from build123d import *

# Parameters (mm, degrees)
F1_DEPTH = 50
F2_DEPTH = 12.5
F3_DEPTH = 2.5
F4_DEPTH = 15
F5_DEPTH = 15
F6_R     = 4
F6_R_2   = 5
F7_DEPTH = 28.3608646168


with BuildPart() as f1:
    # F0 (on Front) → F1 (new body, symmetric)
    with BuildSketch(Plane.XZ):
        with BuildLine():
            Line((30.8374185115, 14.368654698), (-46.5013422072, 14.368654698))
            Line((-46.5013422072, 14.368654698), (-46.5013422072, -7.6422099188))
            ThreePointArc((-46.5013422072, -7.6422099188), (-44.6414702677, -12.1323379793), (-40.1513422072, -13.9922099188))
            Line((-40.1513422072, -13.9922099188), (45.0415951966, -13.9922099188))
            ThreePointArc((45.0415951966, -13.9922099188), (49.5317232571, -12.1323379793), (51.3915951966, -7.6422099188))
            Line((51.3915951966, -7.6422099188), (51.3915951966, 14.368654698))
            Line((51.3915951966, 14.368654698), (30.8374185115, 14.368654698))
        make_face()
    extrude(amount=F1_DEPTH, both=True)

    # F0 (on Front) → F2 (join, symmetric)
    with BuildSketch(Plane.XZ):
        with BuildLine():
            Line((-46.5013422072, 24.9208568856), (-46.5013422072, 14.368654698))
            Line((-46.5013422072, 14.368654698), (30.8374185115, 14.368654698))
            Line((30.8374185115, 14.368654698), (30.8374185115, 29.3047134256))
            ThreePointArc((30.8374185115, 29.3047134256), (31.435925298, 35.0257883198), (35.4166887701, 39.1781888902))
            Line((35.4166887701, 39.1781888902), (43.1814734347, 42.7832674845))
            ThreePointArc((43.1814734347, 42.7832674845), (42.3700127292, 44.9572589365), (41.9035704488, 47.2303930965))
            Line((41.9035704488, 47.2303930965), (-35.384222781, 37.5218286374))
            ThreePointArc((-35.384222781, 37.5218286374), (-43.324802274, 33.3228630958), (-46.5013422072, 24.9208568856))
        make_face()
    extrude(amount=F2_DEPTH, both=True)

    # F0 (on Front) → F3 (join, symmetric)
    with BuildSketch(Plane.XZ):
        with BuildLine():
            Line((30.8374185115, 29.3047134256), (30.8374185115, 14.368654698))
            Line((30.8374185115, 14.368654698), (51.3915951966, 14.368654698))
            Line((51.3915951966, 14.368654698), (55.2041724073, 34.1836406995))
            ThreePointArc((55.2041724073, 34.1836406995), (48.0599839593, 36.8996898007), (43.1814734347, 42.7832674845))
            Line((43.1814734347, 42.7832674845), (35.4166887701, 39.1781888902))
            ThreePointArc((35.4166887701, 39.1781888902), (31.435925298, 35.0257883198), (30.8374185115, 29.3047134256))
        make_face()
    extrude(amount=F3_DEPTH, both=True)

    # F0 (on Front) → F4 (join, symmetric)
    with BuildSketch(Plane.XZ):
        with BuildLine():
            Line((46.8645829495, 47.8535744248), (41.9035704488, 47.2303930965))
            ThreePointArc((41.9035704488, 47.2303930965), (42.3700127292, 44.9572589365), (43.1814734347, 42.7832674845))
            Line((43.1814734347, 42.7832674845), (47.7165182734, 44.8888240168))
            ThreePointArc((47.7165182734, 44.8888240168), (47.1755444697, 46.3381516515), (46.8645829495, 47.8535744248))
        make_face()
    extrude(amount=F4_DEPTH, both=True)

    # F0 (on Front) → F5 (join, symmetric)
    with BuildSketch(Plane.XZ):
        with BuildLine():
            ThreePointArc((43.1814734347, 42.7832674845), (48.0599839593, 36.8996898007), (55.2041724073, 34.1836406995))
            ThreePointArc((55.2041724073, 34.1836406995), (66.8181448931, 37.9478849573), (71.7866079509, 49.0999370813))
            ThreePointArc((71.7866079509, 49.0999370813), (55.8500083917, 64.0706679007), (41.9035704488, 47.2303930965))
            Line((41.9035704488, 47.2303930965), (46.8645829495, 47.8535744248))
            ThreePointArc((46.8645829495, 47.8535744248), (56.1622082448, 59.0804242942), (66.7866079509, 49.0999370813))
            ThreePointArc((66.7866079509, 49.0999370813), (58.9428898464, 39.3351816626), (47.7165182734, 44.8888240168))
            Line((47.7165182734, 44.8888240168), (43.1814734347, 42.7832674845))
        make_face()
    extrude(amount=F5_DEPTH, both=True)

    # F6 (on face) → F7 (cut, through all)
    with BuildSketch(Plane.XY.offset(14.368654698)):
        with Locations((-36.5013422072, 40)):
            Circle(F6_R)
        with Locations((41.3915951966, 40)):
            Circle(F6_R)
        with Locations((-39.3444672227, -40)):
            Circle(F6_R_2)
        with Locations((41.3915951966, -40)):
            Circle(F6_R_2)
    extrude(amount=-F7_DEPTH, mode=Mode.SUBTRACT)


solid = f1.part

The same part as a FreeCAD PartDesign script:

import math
import FreeCAD as App
import Part
import Sketcher
from FreeCAD import Vector
Q = App.Units.Quantity

doc = App.newDocument("Part")
body = doc.addObject("PartDesign::Body", "Body")

sketch1 = doc.addObject("Sketcher::SketchObject", "Sketch")
body.addObject(sketch1)
sketch1.AttachmentSupport = (doc.XZ_Plane, [""])
sketch1.MapMode = "FlatFace"
sketch1.addGeometry([
    Part.LineSegment(Vector(-47, 14, 0), Vector(-47, -8, 0)),
    Part.ArcOfCircle(Part.Circle(Vector(-40, -8, 0), Vector(0, 0, 1), 6), math.radians(180), math.radians(270)),
    Part.LineSegment(Vector(-40, -14, 0), Vector(45, -14, 0)),
    Part.ArcOfCircle(Part.Circle(Vector(45, -8, 0), Vector(0, 0, 1), 6), math.radians(-90), math.radians(0)),
    Part.LineSegment(Vector(51, -8, 0), Vector(51, 14, 0)),
    Part.LineSegment(Vector(51, 14, 0), Vector(-47, 14, 0)),
], False)
sketch1.addConstraint([
    Sketcher.Constraint("Tangent", 0, 2, 1, 1),
    Sketcher.Constraint("Tangent", 1, 2, 2, 1),
    Sketcher.Constraint("Tangent", 2, 2, 3, 1),
    Sketcher.Constraint("Tangent", 3, 2, 4, 1),
    Sketcher.Constraint("Coincident", 4, 2, 5, 1),
    Sketcher.Constraint("Coincident", 5, 2, 0, 1),
    Sketcher.Constraint("Vertical", 0),
    Sketcher.Constraint("Horizontal", 2),
    Sketcher.Constraint("Vertical", 4),
    Sketcher.Constraint("Horizontal", 5),
    Sketcher.Constraint("Equal", 1, 3),
    Sketcher.Constraint("Radius", 1, Q("6.35 mm")),
    Sketcher.Constraint("DistanceX", 2, 1, 2, 2, Q("85.192937 mm")),
    Sketcher.Constraint("DistanceY", 0, 2, 0, 1, Q("22.010865 mm")),
    Sketcher.Constraint("DistanceY", 1, 3, -1, 1, Q("7.64221 mm")),
    Sketcher.Constraint("DistanceX", 1, 3, -1, 1, Q("40.151342 mm")),
])
pad1 = doc.addObject("PartDesign::Pad", "Pad")
body.addObject(pad1)
pad1.Profile = sketch1
pad1.Length = 100
pad1.Midplane = True

sketch2 = doc.addObject("Sketcher::SketchObject", "Sketch001")
body.addObject(sketch2)
sketch2.AttachmentSupport = (doc.XZ_Plane, [""])
sketch2.MapMode = "FlatFace"
sketch2.addGeometry([
    Part.LineSegment(Vector(-46.5, 24.9, 0), Vector(-46.5, 14.4, 0)),
    Part.LineSegment(Vector(-46.5, 14.4, 0), Vector(30.8, 14.4, 0)),
    Part.LineSegment(Vector(30.8, 14.4, 0), Vector(30.8, 29.3, 0)),
    Part.ArcOfCircle(Part.Circle(Vector(39.5, 31.3, 0), Vector(0, 0, 1), 8.9), math.radians(117), math.radians(193)),
    Part.LineSegment(Vector(35.4, 39.2, 0), Vector(43.2, 42.8, 0)),
    Part.ArcOfCircle(Part.Circle(Vector(56.8, 49.1, 0), Vector(0, 0, 1), 15), math.radians(-172.84), math.radians(-155.1)),
    Part.LineSegment(Vector(41.9, 47.2, 0), Vector(-35.4, 37.5, 0)),
    Part.ArcOfCircle(Part.Circle(Vector(-33.8, 24.9, 0), Vector(0, 0, 1), 12.7), math.radians(97), math.radians(180)),
], False)
sketch2.addConstraint([
    Sketcher.Constraint("Coincident", 0, 2, 1, 1),
    Sketcher.Constraint("Coincident", 1, 2, 2, 1),
    Sketcher.Constraint("Coincident", 2, 2, 3, 2),
    Sketcher.Constraint("Coincident", 3, 1, 4, 1),
    Sketcher.Constraint("Coincident", 4, 2, 5, 2),
    Sketcher.Constraint("Coincident", 5, 1, 6, 1),
    Sketcher.Constraint("Tangent", 6, 2, 7, 1),
    Sketcher.Constraint("Tangent", 7, 2, 0, 1),
    Sketcher.Constraint("Vertical", 0),
    Sketcher.Constraint("Horizontal", 1),
    Sketcher.Constraint("Vertical", 2),
    Sketcher.Constraint("Radius", 5, Q("15 mm")),
    Sketcher.Constraint("Radius", 7, Q("12.7 mm")),
    Sketcher.Constraint("Radius", 3, Q("8.875009 mm")),
    Sketcher.Constraint("DistanceX", 1, 1, 1, 2, Q("77.338761 mm")),
    Sketcher.Constraint("DistanceY", 2, 1, 2, 2, Q("14.936059 mm")),
    Sketcher.Constraint("Distance", 4, Q("8.560869 mm")),
    Sketcher.Constraint("Distance", 6, Q("77.895181 mm")),
    Sketcher.Constraint("DistanceY", 0, 2, 0, 1, Q("10.552202 mm")),
    Sketcher.Constraint("DistanceY", -1, 1, 3, 3, Q("31.291671 mm")),
    Sketcher.Constraint("DistanceX", -1, 1, 1, 2, Q("30.837419 mm")),
    Sketcher.Constraint("DistanceX", -1, 1, 3, 1, Q("35.416689 mm")),
    Sketcher.Constraint("DistanceY", -1, 1, 3, 1, Q("39.178189 mm")),
    Sketcher.Constraint("DistanceX", -1, 1, 5, 1, Q("41.90357 mm")),
    Sketcher.Constraint("DistanceY", 3, 1, 4, 2, Q("3.605079 mm")),
])
pad2 = doc.addObject("PartDesign::Pad", "Pad001")
body.addObject(pad2)
pad2.Profile = sketch2
pad2.Length = 25
pad2.Midplane = True

sketch3 = doc.addObject("Sketcher::SketchObject", "Sketch002")
body.addObject(sketch3)
sketch3.AttachmentSupport = (doc.XZ_Plane, [""])
sketch3.MapMode = "FlatFace"
sketch3.addGeometry([
    Part.LineSegment(Vector(30.837419, 29.304713, 0), Vector(30.837419, 14.368655, 0)),
    Part.LineSegment(Vector(30.837419, 14.368655, 0), Vector(51.391595, 14.368655, 0)),
    Part.LineSegment(Vector(51.391595, 14.368655, 0), Vector(55.204172, 34.183641, 0)),
    Part.ArcOfCircle(Part.Circle(Vector(56.786608, 49.099937, 0), Vector(0, 0, 1), 15), math.radians(-155.095231), math.radians(-96.055727)),
    Part.LineSegment(Vector(43.181473, 42.783267, 0), Vector(35.416689, 39.178189, 0)),
    Part.ArcOfCircle(Part.Circle(Vector(39.487146, 31.291671, 0), Vector(0, 0, 1), 8.875009), math.radians(117.299551), math.radians(192.937164)),
], False)
sketch3.addConstraint([
    Sketcher.Constraint("Coincident", 0, 2, 1, 1),
    Sketcher.Constraint("Coincident", 1, 2, 2, 1),
    Sketcher.Constraint("Coincident", 2, 2, 3, 2),
    Sketcher.Constraint("Coincident", 3, 1, 4, 1),
    Sketcher.Constraint("Coincident", 4, 2, 5, 1),
    Sketcher.Constraint("Coincident", 5, 2, 0, 1),
    Sketcher.Constraint("Vertical", 0),
    Sketcher.Constraint("Horizontal", 1),
    Sketcher.Constraint("Radius", 3, Q("15 mm")),
    Sketcher.Constraint("Radius", 5, Q("8.875009 mm")),
    Sketcher.Constraint("DistanceY", 0, 2, 0, 1, Q("14.936059 mm")),
    Sketcher.Constraint("DistanceX", 3, 1, 2, 2, Q("12.022699 mm")),
    Sketcher.Constraint("Distance", 2, Q("20.178439 mm")),
    Sketcher.Constraint("Distance", 4, Q("8.560869 mm")),
    Sketcher.Constraint("DistanceX", 1, 1, 1, 2, Q("20.554177 mm")),
    Sketcher.Constraint("DistanceY", -1, 1, 5, 3, Q("31.291671 mm")),
    Sketcher.Constraint("DistanceX", -1, 1, 0, 2, Q("30.837419 mm")),
    Sketcher.Constraint("DistanceY", -1, 1, 2, 2, Q("34.183641 mm")),
    Sketcher.Constraint("DistanceX", -1, 1, 4, 2, Q("35.416689 mm")),
    Sketcher.Constraint("DistanceY", -1, 1, 4, 2, Q("39.178189 mm")),
])
pad3 = doc.addObject("PartDesign::Pad", "Pad002")
body.addObject(pad3)
pad3.Profile = sketch3
pad3.Length = 5
pad3.Midplane = True

sketch4 = doc.addObject("Sketcher::SketchObject", "Sketch003")
body.addObject(sketch4)
sketch4.AttachmentSupport = (doc.XZ_Plane, [""])
sketch4.MapMode = "FlatFace"
sketch4.addGeometry([
    Part.LineSegment(Vector(46.9, 47.9, 0), Vector(41.9, 47.2, 0)),
    Part.ArcOfCircle(Part.Circle(Vector(56.8, 49.1, 0), Vector(0, 0, 1), 15), math.radians(-172.84), math.radians(-155.1)),
    Part.LineSegment(Vector(43.2, 42.8, 0), Vector(47.7, 44.9, 0)),
    Part.ArcOfCircle(Part.Circle(Vector(56.8, 49.1, 0), Vector(0, 0, 1), 10), math.radians(-172.84), math.radians(-155.1)),
], False)
sketch4.addConstraint([
    Sketcher.Constraint("Coincident", 0, 2, 1, 1),
    Sketcher.Constraint("Coincident", 1, 2, 2, 1),
    Sketcher.Constraint("Coincident", 2, 2, 3, 2),
    Sketcher.Constraint("Coincident", 3, 1, 0, 1),
    Sketcher.Constraint("Coincident", 3, 3, 1, 3),
    Sketcher.Constraint("Radius", 1, Q("15 mm")),
    Sketcher.Constraint("Radius", 3, Q("10 mm")),
    Sketcher.Constraint("DistanceX", -1, 1, 0, 2, Q("41.90357 mm")),
    Sketcher.Constraint("DistanceX", -1, 1, 2, 2, Q("47.716518 mm")),
    Sketcher.Constraint("DistanceY", 1, 2, 3, 3, Q("6.31667 mm")),
    Sketcher.Constraint("DistanceY", 2, 2, 0, 2, Q("2.341569 mm")),
    Sketcher.Constraint("DistanceY", 2, 2, 3, 1, Q("2.96475 mm")),
    Sketcher.Constraint("DistanceY", -1, 1, 1, 3, Q("49.099937 mm")),
])
pad4 = doc.addObject("PartDesign::Pad", "Pad003")
body.addObject(pad4)
pad4.Profile = sketch4
pad4.Length = 30
pad4.Midplane = True

sketch5 = doc.addObject("Sketcher::SketchObject", "Sketch004")
body.addObject(sketch5)
sketch5.AttachmentSupport = (doc.XZ_Plane, [""])
sketch5.MapMode = "FlatFace"
sketch5.addGeometry([
    Part.ArcOfCircle(Part.Circle(Vector(56.8, 49.1, 0), Vector(0, 0, 1), 15), math.radians(-155), math.radians(-96)),
    Part.ArcOfCircle(Part.Circle(Vector(56.8, 49.1, 0), Vector(0, 0, 1), 15), math.radians(-96), math.radians(187)),
    Part.LineSegment(Vector(41.9, 47.2, 0), Vector(46.9, 47.9, 0)),
    Part.ArcOfCircle(Part.Circle(Vector(56.8, 49.1, 0), Vector(0, 0, 1), 10), math.radians(-155), math.radians(187)),
    Part.LineSegment(Vector(47.7, 44.9, 0), Vector(43.2, 42.8, 0)),
], False)
sketch5.addConstraint([
    Sketcher.Constraint("Tangent", 0, 2, 1, 1),
    Sketcher.Constraint("Coincident", 1, 2, 2, 1),
    Sketcher.Constraint("Coincident", 2, 2, 3, 2),
    Sketcher.Constraint("Coincident", 3, 1, 4, 1),
    Sketcher.Constraint("Coincident", 4, 2, 0, 1),
    Sketcher.Constraint("Coincident", 3, 3, 0, 3),
    Sketcher.Constraint("Equal", 0, 1),
    Sketcher.Constraint("Radius", 0, Q("15 mm")),
    Sketcher.Constraint("Radius", 3, Q("10 mm")),
    Sketcher.Constraint("DistanceX", 1, 2, 0, 2, Q("13.300602 mm")),
    Sketcher.Constraint("DistanceX", 4, 2, 0, 2, Q("12.022699 mm")),
    Sketcher.Constraint("DistanceY", -1, 1, 0, 2, Q("34.183641 mm")),
    Sketcher.Constraint("DistanceX", -1, 1, 1, 2, Q("41.90357 mm")),
    Sketcher.Constraint("DistanceX", -1, 1, 3, 1, Q("47.716518 mm")),
    Sketcher.Constraint("DistanceY", 1, 2, 2, 2, Q("0.623181 mm")),
    Sketcher.Constraint("DistanceY", 3, 1, 2, 2, Q("2.96475 mm")),
])
pad5 = doc.addObject("PartDesign::Pad", "Pad004")
body.addObject(pad5)
pad5.Profile = sketch5
pad5.Length = 30
pad5.Midplane = True

sketch6 = doc.addObject("Sketcher::SketchObject", "Sketch005")
body.addObject(sketch6)
sketch6.AttachmentSupport = (doc.XY_Plane, [""])
sketch6.MapMode = "FlatFace"
sketch6.AttachmentOffset = App.Placement(Vector(0, 0, 14.368655), App.Rotation())
sketch6.addGeometry([
    Part.Circle(Vector(-36.5, 40, 0), Vector(0, 0, 1), 4),
    Part.Circle(Vector(41.4, 40, 0), Vector(0, 0, 1), 4),
    Part.Circle(Vector(-39.3, -40, 0), Vector(0, 0, 1), 5),
    Part.Circle(Vector(41.4, -40, 0), Vector(0, 0, 1), 5),
], False)
sketch6.addConstraint([
    Sketcher.Constraint("Equal", 0, 1),
    Sketcher.Constraint("Equal", 2, 3),
    Sketcher.Constraint("Symmetric", 1, 3, 3, 3, -1),
    Sketcher.Constraint("Horizontal", 0, 3, 1, 3),
    Sketcher.Constraint("Horizontal", 2, 3, 3, 3),
    Sketcher.Constraint("Diameter", 0, Q("8 mm")),
    Sketcher.Constraint("Diameter", 2, Q("10 mm")),
    Sketcher.Constraint("DistanceY", -1, 1, 0, 3, Q("40 mm")),
    Sketcher.Constraint("DistanceX", 0, 3, -1, 1, Q("36.501342 mm")),
    Sketcher.Constraint("DistanceX", -1, 1, 1, 3, Q("41.391595 mm")),
    Sketcher.Constraint("DistanceX", 2, 3, -1, 1, Q("39.344467 mm")),
])
pocket1 = doc.addObject("PartDesign::Pocket", "Pocket")
body.addObject(pocket1)
pocket1.Profile = sketch6
pocket1.Type = "ThroughAll"

doc.recompute()
